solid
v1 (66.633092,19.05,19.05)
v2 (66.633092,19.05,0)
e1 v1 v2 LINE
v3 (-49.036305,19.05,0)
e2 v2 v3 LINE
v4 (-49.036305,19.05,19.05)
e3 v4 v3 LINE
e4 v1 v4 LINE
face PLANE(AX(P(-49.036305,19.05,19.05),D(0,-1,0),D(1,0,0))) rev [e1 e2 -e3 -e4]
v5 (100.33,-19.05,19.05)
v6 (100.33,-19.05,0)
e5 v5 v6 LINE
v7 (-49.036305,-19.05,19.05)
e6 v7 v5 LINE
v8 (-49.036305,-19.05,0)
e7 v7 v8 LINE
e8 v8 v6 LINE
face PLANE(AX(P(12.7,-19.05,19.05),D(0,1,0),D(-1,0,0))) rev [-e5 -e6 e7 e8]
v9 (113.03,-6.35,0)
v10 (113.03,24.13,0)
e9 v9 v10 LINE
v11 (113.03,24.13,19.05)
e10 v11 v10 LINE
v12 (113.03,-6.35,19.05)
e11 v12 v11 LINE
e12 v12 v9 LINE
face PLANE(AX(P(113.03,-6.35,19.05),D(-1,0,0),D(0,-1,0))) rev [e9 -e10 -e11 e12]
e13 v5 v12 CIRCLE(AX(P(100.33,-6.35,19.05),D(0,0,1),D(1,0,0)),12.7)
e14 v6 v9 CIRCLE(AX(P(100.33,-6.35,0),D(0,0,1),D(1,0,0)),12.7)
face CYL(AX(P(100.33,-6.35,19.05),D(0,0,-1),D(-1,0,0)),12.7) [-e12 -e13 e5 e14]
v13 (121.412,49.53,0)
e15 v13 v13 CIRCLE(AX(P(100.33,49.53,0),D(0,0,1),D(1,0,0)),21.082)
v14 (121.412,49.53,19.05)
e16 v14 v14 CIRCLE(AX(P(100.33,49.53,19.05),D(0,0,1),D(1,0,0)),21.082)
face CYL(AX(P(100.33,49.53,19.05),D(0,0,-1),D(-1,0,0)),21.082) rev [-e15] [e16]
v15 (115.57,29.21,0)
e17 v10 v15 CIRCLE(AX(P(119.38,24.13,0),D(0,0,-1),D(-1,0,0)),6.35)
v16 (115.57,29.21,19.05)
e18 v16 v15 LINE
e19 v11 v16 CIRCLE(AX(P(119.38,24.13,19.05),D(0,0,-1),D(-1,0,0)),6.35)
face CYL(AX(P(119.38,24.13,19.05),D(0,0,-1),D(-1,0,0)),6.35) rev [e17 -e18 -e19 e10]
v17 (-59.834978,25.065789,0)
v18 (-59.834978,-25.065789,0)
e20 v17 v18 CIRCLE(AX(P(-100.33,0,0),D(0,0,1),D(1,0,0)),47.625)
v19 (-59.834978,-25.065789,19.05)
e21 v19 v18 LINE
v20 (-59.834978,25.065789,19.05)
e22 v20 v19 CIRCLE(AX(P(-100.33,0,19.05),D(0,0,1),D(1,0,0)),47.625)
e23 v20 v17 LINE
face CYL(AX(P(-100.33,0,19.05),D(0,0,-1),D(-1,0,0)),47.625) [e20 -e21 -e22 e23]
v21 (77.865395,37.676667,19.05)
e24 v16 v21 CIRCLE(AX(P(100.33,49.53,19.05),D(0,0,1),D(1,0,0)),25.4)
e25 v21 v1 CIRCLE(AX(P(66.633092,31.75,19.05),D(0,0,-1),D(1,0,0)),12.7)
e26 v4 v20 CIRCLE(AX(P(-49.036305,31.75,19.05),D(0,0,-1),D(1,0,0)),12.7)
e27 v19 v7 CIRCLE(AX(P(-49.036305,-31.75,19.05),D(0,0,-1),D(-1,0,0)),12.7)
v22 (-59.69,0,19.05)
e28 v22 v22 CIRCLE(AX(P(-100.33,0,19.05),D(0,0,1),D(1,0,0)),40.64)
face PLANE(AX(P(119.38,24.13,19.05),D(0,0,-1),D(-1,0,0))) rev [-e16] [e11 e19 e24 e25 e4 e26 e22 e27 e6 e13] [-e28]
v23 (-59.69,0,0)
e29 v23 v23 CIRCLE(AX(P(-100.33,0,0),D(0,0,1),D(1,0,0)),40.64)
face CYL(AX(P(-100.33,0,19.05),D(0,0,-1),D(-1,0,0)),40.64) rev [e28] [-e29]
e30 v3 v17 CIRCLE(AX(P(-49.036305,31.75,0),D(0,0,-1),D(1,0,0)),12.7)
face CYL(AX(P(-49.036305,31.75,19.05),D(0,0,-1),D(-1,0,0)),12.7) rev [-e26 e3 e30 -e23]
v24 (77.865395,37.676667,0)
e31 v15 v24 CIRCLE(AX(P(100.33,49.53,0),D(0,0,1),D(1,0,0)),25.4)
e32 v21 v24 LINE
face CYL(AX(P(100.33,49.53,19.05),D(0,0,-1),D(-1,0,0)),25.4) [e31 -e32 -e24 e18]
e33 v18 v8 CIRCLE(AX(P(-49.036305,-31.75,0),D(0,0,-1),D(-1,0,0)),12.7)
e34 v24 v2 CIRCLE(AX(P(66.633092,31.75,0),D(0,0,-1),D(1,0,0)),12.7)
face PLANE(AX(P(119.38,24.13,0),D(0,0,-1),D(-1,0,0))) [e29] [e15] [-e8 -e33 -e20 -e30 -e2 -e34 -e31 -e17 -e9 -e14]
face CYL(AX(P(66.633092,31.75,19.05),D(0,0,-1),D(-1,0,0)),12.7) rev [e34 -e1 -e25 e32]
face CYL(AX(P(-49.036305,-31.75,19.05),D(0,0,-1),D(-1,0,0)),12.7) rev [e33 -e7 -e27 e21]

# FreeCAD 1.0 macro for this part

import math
import FreeCAD as App
import Part
import Sketcher
Q = App.Units.Quantity

doc = App.newDocument("Part")
params = doc.addObject("Spreadsheet::Sheet", "Params")
for row, (alias, value) in enumerate([
    ("sketch1_radius", "1 in"),
    ("sketch1_diameter", "3.2 in"),
    ("sketch1_radius2", "0.5 in"),
    ("sketch1_diameter2", "1.66 in"),
    ("sketch1_radius3", "0.25 in"),
    ("pad1_length", "0.75 in"),
], start=1):
    params.set(f"A{row}", alias)
    params.set(f"B{row}", "=" + value)
    params.setAlias(f"B{row}", alias)

body = doc.addObject("PartDesign::Body", "Body")

sketch1 = body.newObject("Sketcher::SketchObject", "Sketch")
sketch1.AttachmentSupport = (doc.getObject("XY_Plane"), [""])
sketch1.MapMode = "FlatFace"
sketch1.addGeometry([
    Part.LineSegment(App.Vector(66.633092, 19.05, 0), App.Vector(-49.036305, 19.05, 0)),
    Part.ArcOfCircle(Part.Circle(App.Vector(-49.036305, 31.75, 0), App.Vector(0, 0, 1), 12.7), math.radians(-148.243136), math.radians(-90)),
    Part.ArcOfCircle(Part.Circle(App.Vector(-100.33, 0, 0), App.Vector(0, 0, 1), 47.625), math.radians(31.756864), math.radians(151.927513)),
    Part.ArcOfCircle(Part.Circle(App.Vector(-100.33, 0, 0), App.Vector(0, 0, 1), 47.625), math.radians(151.927513), math.radians(208.072487)),
    Part.ArcOfCircle(Part.Circle(App.Vector(-100.33, 0, 0), App.Vector(0, 0, 1), 47.625), math.radians(-151.927513), math.radians(-31.756864)),
    Part.ArcOfCircle(Part.Circle(App.Vector(-49.036305, -31.75, 0), App.Vector(0, 0, 1), 12.7), math.radians(90), math.radians(148.243136)),
    Part.LineSegment(App.Vector(-49.036305, -19.05, 0), App.Vector(100.33, -19.05, 0)),
    Part.ArcOfCircle(Part.Circle(App.Vector(100.33, -6.35, 0), App.Vector(0, 0, 1), 12.7), math.radians(-90), math.radians(0)),
    Part.LineSegment(App.Vector(113.03, -6.35, 0), App.Vector(113.03, 24.13, 0)),
    Part.ArcOfCircle(Part.Circle(App.Vector(119.38, 24.13, 0), App.Vector(0, 0, 1), 6.35), math.radians(126.869898), math.radians(180)),
    Part.ArcOfCircle(Part.Circle(App.Vector(100.33, 49.53, 0), App.Vector(0, 0, 1), 25.4), math.radians(-53.130102), math.radians(-36.869898)),
    Part.ArcOfCircle(Part.Circle(App.Vector(100.33, 49.53, 0), App.Vector(0, 0, 1), 25.4), math.radians(-36.869898), math.radians(36.869898)),
    Part.ArcOfCircle(Part.Circle(App.Vector(100.33, 49.53, 0), App.Vector(0, 0, 1), 25.4), math.radians(36.869898), math.radians(207.818139)),
    Part.ArcOfCircle(Part.Circle(App.Vector(66.633092, 31.75, 0), App.Vector(0, 0, 1), 12.7), math.radians(-90), math.radians(27.818139)),
    Part.Circle(App.Vector(-100.33, 0, 0), App.Vector(0, 0, 1), 40.64),
    Part.Circle(App.Vector(100.33, 49.53, 0), App.Vector(0, 0, 1), 21.082),
], False)
sketch1.addConstraint([
    Sketcher.Constraint("Tangent", 0, 2, 1, 2),
    Sketcher.Constraint("Tangent", 1, 1, 2, 1),
    Sketcher.Constraint("Tangent", 2, 2, 3, 1),
    Sketcher.Constraint("Tangent", 3, 2, 4, 1),
    Sketcher.Constraint("Tangent", 4, 2, 5, 2),
    Sketcher.Constraint("Tangent", 5, 1, 6, 1),
    Sketcher.Constraint("Tangent", 6, 2, 7, 1),
    Sketcher.Constraint("Tangent", 7, 2, 8, 1),
    Sketcher.Constraint("Tangent", 8, 2, 9, 2),
    Sketcher.Constraint("Tangent", 9, 1, 10, 1),
    Sketcher.Constraint("Tangent", 10, 2, 11, 1),
    Sketcher.Constraint("Tangent", 11, 2, 12, 1),
    Sketcher.Constraint("Tangent", 12, 2, 13, 2),
    Sketcher.Constraint("Tangent", 13, 1, 0, 1),
    Sketcher.Constraint("Horizontal", 0),
    Sketcher.Constraint("Horizontal", 6),
    Sketcher.Constraint("Vertical", 8),
    Sketcher.Constraint("Coincident", 4, 3, 2, 3),
    Sketcher.Constraint("Coincident", 12, 3, 10, 3),
    Sketcher.Constraint("Coincident", 14, 3, 2, 3),
    Sketcher.Constraint("Coincident", 15, 3, 10, 3),
    Sketcher.Constraint("Equal", 1, 5),
    Sketcher.Constraint("Equal", 5, 7),
    Sketcher.Constraint("Equal", 7, 13),
    Sketcher.Constraint("Symmetric", 1, 3, 5, 3, -1),
    Sketcher.Constraint("Vertical", 7, 3, 10, 3),
    Sketcher.Constraint("Vertical", 2, 2, 3, 2),
    Sketcher.Constraint("Vertical", 10, 2, 11, 2),
    Sketcher.Constraint("Radius", 10, Q("1 in")),
    Sketcher.Constraint("Diameter", 14, Q("3.2 in")),
    Sketcher.Constraint("Radius", 1, Q("0.5 in")),
    Sketcher.Constraint("Diameter", 15, Q("1.66 in")),
    Sketcher.Constraint("Radius", 9, Q("0.25 in")),
    Sketcher.Constraint("DistanceY", 8, 1, 8, 2, Q("1.2 in")),
    Sketcher.Constraint("Radius", 2, Q("1.875 in")),
    Sketcher.Constraint("DistanceY", 5, 3, 0, 2, Q("2 in")),
    Sketcher.Constraint("DistanceX", -1, 1, 9, 3, Q("4.7 in")),
    Sketcher.Constraint("DistanceX", 3, 3, 7, 3, Q("7.9 in")),
    Sketcher.Constraint("DistanceX", 9, 1, 10, 2, Q("0.2 in")),
    Sketcher.Constraint("DistanceX", 2, 2, -1, 1, 142.352059),
])
sketch1.setExpression("Constraints[28]", "Params.sketch1_radius")
sketch1.setExpression("Constraints[29]", "Params.sketch1_diameter")
sketch1.setExpression("Constraints[30]", "Params.sketch1_radius2")
sketch1.setExpression("Constraints[31]", "Params.sketch1_diameter2")
sketch1.setExpression("Constraints[32]", "Params.sketch1_radius3")
pad1 = body.newObject("PartDesign::Pad", "Pad")
pad1.Profile = sketch1
pad1.setExpression("Length", "Params.pad1_length")

doc.recompute()
